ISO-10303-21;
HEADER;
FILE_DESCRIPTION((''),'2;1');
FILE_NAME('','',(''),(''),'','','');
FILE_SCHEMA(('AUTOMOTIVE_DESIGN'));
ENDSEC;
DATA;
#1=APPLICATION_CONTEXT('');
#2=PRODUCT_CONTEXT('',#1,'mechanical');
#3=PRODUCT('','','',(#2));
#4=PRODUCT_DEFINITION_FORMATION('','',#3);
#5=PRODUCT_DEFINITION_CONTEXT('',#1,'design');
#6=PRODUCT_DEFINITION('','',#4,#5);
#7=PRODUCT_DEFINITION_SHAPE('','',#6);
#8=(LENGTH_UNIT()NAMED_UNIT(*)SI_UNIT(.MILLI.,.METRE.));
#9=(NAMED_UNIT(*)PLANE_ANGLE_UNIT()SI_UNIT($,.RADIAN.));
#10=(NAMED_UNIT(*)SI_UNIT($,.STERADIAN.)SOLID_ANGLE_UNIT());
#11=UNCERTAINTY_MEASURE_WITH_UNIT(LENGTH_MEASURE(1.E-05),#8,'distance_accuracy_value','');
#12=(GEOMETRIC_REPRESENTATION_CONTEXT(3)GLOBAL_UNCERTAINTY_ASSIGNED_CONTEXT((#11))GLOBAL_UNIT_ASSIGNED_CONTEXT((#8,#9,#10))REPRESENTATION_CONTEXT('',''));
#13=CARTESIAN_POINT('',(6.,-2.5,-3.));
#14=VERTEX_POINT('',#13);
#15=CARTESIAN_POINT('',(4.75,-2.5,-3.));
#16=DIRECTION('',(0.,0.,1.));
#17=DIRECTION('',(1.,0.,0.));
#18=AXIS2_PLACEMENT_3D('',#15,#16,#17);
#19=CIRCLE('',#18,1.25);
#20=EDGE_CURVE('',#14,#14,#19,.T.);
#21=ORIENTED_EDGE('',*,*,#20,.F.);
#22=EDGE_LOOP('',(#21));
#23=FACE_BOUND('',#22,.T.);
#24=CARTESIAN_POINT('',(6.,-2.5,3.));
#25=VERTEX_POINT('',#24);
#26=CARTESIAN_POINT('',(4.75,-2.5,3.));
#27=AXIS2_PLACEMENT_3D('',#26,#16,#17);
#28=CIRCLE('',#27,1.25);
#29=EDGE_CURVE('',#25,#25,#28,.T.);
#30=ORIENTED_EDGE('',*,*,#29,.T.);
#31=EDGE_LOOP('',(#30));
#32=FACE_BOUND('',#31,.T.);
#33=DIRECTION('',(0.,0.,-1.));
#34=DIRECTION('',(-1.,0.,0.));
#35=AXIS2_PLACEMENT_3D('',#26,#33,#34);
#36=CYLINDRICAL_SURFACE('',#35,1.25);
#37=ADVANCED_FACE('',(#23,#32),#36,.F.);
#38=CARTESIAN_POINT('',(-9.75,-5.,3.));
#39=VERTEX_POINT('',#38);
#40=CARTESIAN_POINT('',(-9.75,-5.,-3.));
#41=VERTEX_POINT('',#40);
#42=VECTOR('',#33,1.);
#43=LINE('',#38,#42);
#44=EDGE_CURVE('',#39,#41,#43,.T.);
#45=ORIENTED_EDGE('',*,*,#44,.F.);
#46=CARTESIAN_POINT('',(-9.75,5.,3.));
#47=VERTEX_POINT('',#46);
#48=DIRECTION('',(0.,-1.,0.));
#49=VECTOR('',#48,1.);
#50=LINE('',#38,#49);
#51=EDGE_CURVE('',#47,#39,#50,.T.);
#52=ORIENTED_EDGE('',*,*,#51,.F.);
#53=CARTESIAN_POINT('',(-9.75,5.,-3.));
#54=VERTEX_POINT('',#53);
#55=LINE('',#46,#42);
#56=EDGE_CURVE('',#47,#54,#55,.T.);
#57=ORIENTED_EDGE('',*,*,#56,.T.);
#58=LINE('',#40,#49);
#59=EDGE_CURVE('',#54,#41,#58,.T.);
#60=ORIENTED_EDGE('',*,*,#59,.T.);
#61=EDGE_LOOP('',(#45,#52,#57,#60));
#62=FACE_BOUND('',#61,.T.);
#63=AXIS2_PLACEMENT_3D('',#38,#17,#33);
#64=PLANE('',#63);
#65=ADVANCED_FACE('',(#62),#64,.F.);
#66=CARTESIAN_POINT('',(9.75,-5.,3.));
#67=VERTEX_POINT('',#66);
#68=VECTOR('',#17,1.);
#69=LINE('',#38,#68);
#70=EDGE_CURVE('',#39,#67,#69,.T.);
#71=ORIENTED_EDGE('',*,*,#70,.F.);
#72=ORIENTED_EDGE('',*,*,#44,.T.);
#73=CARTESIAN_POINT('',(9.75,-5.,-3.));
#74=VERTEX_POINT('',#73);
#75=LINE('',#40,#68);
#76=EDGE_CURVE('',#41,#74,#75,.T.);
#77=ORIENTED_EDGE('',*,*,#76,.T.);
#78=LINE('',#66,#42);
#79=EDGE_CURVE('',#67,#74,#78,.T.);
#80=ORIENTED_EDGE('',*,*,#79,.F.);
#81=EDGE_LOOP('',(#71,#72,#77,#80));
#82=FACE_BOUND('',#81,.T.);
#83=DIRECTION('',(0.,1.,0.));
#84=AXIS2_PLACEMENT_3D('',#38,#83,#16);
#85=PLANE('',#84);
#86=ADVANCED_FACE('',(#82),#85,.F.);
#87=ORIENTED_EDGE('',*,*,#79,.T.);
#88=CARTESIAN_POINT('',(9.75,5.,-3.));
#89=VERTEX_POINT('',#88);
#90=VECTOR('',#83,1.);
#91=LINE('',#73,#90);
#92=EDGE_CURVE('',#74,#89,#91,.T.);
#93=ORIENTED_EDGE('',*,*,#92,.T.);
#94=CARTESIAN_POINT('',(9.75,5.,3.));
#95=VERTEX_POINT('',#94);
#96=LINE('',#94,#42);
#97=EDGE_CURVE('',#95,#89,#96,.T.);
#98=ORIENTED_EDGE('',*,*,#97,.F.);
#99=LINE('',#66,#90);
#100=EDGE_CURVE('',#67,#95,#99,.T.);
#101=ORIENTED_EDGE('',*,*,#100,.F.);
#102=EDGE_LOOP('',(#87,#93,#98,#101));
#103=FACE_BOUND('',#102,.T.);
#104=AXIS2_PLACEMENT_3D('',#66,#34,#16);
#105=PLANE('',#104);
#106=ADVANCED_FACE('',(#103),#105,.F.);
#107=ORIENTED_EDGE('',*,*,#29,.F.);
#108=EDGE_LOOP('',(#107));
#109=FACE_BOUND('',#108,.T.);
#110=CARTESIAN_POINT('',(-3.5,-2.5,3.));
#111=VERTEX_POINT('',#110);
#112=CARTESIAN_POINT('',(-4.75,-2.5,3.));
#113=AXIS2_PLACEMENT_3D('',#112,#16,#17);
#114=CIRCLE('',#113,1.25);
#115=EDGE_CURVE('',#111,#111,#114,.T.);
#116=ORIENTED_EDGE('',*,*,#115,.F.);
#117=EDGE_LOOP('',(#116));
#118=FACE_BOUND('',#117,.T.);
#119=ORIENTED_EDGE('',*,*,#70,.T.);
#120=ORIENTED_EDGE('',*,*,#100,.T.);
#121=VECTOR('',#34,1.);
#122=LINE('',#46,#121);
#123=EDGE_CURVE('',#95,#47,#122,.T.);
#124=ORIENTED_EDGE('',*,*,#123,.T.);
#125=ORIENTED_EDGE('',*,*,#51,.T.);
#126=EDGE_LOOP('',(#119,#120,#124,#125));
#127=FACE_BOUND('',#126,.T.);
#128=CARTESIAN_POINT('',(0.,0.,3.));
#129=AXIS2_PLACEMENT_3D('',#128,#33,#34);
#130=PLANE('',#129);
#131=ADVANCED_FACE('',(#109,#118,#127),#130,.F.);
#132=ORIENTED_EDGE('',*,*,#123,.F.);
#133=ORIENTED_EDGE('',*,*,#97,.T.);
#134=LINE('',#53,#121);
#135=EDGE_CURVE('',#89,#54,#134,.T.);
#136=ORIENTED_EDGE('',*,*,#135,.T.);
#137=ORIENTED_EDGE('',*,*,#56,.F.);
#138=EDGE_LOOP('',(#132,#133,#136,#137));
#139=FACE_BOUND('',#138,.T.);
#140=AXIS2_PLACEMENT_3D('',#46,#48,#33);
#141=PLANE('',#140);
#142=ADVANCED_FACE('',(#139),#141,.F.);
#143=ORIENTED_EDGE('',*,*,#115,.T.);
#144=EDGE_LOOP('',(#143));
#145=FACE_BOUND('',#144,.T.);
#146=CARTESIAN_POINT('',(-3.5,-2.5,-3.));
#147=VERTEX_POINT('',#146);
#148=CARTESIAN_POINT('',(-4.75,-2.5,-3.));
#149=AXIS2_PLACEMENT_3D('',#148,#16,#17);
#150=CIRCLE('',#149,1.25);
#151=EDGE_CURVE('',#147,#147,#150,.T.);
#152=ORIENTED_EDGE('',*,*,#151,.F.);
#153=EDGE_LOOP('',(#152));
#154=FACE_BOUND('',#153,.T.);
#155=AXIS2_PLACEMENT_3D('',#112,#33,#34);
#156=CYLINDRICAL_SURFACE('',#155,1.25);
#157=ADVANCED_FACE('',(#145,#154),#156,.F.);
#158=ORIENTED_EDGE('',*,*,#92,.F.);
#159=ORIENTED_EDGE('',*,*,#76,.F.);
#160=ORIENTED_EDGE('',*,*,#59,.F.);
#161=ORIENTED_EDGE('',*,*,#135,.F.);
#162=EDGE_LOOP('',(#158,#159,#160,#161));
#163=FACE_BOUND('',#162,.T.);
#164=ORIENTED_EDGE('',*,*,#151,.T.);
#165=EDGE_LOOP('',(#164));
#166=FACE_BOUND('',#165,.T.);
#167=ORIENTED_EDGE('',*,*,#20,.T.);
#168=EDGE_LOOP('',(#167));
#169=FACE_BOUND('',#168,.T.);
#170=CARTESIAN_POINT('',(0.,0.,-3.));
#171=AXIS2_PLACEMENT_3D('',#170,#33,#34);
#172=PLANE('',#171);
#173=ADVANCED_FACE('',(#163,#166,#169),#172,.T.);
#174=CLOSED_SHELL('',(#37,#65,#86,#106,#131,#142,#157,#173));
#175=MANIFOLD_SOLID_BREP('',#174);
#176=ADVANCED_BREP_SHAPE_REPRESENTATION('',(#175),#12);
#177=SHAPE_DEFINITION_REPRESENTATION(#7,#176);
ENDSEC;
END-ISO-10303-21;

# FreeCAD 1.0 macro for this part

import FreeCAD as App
import Part
import Sketcher
Q = App.Units.Quantity

doc = App.newDocument("Part")
body = doc.addObject("PartDesign::Body", "Body")

# Sketch on XY plane
sketch1 = body.newObject("Sketcher::SketchObject", "Sketch")
sketch1.AttachmentSupport = (doc.getObject("XY_Plane"), [""])
sketch1.MapMode = "FlatFace"
sketch1.addGeometry(Part.LineSegment(App.Vector(-9.8, 5, 0), App.Vector(-9.8, -5, 0)), False)
sketch1.addGeometry(Part.LineSegment(App.Vector(-9.8, -5, 0), App.Vector(9.8, -5, 0)), False)
sketch1.addGeometry(Part.LineSegment(App.Vector(9.8, -5, 0), App.Vector(9.8, 5, 0)), False)
sketch1.addGeometry(Part.LineSegment(App.Vector(9.8, 5, 0), App.Vector(-9.8, 5, 0)), False)
sketch1.addGeometry(Part.Circle(App.Vector(-4.8, -2.5, 0), App.Vector(0, 0, 1), 1.2), False)
sketch1.addGeometry(Part.Circle(App.Vector(4.8, -2.5, 0), App.Vector(0, 0, 1), 1.2), False)
sketch1.addConstraint(Sketcher.Constraint("Coincident", 0, 2, 1, 1))
sketch1.addConstraint(Sketcher.Constraint("Coincident", 1, 2, 2, 1))
sketch1.addConstraint(Sketcher.Constraint("Coincident", 2, 2, 3, 1))
sketch1.addConstraint(Sketcher.Constraint("Coincident", 3, 2, 0, 1))
sketch1.addConstraint(Sketcher.Constraint("Vertical", 0))
sketch1.addConstraint(Sketcher.Constraint("Horizontal", 1))
sketch1.addConstraint(Sketcher.Constraint("Vertical", 2))
sketch1.addConstraint(Sketcher.Constraint("Horizontal", 3))
sketch1.addConstraint(Sketcher.Constraint("Equal", 4, 5))
sketch1.addConstraint(Sketcher.Constraint("Symmetric", 0, 2, 2, 2, -1, 1))
sketch1.addConstraint(Sketcher.Constraint("Symmetric", 4, 3, 5, 3, -2))
sketch1.addConstraint(Sketcher.Constraint("Diameter", 4, Q("2.5 mm")))
sketch1.addConstraint(Sketcher.Constraint("DistanceY", 0, 2, 0, 1, Q("10 mm")))
sketch1.addConstraint(Sketcher.Constraint("DistanceX", 1, 1, 1, 2, Q("19.5 mm")))
sketch1.addConstraint(Sketcher.Constraint("DistanceX", 0, 2, 4, 3, Q("5 mm")))
sketch1.addConstraint(Sketcher.Constraint("DistanceY", 4, 3, -1, 1, Q("2.5 mm")))
pad1 = body.newObject("PartDesign::Pad", "Pad")
pad1.Profile = sketch1
pad1.Length = 6
pad1.Midplane = True

doc.recompute()
